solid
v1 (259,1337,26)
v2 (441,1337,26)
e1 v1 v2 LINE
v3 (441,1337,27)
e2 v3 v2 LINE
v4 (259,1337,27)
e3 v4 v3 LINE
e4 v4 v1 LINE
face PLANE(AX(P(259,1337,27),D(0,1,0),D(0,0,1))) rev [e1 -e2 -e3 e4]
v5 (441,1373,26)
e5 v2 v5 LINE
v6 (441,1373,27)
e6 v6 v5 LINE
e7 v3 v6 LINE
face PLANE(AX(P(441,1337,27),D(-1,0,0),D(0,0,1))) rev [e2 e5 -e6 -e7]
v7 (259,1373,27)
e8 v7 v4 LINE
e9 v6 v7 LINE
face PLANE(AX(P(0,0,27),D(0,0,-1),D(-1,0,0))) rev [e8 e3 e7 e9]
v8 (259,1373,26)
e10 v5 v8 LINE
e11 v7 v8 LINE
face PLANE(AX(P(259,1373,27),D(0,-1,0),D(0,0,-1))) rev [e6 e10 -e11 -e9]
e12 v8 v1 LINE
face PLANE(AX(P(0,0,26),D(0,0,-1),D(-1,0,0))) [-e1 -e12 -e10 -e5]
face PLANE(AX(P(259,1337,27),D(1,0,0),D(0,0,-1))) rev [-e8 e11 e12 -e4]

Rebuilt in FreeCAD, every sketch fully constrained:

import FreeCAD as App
import Part
import Sketcher


def add_polygon(sketch, points):
    """Adds a closed chain of lines whose ends are joined by coincident constraints."""
    first, n = sketch.GeometryCount, len(points)
    for a, b in zip(points, points[1:] + points[:1]):
        sketch.addGeometry(Part.LineSegment(App.Vector(*a, 0), App.Vector(*b, 0)), False)
    for i in range(n):
        sketch.addConstraint(Sketcher.Constraint("Coincident", first + i, 2, first + (i + 1) % n, 1))

doc = App.newDocument("Part")
body = doc.addObject("PartDesign::Body", "Body")

sketch1 = doc.addObject("Sketcher::SketchObject", "Sketch")
body.addObject(sketch1)
sketch1.AttachmentSupport = (doc.XY_Plane, [""])
sketch1.MapMode = "FlatFace"
sketch1.AttachmentOffset = App.Placement(App.Vector(0, 0, 26), App.Rotation())
add_polygon(sketch1, [(259, 1373), (259, 1337), (441, 1337), (441, 1373)])
sketch1.addConstraint(Sketcher.Constraint("Vertical", 0))
sketch1.addConstraint(Sketcher.Constraint("Horizontal", 1))
sketch1.addConstraint(Sketcher.Constraint("Vertical", 2))
sketch1.addConstraint(Sketcher.Constraint("Horizontal", 3))
sketch1.addConstraint(Sketcher.Constraint("DistanceX", 1, 1, 1, 2, 182.0))
sketch1.addConstraint(Sketcher.Constraint("DistanceY", 0, 2, 0, 1, 36.0))
sketch1.addConstraint(Sketcher.Constraint("DistanceX", -1, 1, 0, 2, 259.0))
sketch1.addConstraint(Sketcher.Constraint("DistanceY", -1, 1, 0, 2, 1337.0))
pad1 = doc.addObject("PartDesign::Pad", "Pad")
body.addObject(pad1)
pad1.Profile = sketch1
pad1.Length = 1

doc.recompute()
